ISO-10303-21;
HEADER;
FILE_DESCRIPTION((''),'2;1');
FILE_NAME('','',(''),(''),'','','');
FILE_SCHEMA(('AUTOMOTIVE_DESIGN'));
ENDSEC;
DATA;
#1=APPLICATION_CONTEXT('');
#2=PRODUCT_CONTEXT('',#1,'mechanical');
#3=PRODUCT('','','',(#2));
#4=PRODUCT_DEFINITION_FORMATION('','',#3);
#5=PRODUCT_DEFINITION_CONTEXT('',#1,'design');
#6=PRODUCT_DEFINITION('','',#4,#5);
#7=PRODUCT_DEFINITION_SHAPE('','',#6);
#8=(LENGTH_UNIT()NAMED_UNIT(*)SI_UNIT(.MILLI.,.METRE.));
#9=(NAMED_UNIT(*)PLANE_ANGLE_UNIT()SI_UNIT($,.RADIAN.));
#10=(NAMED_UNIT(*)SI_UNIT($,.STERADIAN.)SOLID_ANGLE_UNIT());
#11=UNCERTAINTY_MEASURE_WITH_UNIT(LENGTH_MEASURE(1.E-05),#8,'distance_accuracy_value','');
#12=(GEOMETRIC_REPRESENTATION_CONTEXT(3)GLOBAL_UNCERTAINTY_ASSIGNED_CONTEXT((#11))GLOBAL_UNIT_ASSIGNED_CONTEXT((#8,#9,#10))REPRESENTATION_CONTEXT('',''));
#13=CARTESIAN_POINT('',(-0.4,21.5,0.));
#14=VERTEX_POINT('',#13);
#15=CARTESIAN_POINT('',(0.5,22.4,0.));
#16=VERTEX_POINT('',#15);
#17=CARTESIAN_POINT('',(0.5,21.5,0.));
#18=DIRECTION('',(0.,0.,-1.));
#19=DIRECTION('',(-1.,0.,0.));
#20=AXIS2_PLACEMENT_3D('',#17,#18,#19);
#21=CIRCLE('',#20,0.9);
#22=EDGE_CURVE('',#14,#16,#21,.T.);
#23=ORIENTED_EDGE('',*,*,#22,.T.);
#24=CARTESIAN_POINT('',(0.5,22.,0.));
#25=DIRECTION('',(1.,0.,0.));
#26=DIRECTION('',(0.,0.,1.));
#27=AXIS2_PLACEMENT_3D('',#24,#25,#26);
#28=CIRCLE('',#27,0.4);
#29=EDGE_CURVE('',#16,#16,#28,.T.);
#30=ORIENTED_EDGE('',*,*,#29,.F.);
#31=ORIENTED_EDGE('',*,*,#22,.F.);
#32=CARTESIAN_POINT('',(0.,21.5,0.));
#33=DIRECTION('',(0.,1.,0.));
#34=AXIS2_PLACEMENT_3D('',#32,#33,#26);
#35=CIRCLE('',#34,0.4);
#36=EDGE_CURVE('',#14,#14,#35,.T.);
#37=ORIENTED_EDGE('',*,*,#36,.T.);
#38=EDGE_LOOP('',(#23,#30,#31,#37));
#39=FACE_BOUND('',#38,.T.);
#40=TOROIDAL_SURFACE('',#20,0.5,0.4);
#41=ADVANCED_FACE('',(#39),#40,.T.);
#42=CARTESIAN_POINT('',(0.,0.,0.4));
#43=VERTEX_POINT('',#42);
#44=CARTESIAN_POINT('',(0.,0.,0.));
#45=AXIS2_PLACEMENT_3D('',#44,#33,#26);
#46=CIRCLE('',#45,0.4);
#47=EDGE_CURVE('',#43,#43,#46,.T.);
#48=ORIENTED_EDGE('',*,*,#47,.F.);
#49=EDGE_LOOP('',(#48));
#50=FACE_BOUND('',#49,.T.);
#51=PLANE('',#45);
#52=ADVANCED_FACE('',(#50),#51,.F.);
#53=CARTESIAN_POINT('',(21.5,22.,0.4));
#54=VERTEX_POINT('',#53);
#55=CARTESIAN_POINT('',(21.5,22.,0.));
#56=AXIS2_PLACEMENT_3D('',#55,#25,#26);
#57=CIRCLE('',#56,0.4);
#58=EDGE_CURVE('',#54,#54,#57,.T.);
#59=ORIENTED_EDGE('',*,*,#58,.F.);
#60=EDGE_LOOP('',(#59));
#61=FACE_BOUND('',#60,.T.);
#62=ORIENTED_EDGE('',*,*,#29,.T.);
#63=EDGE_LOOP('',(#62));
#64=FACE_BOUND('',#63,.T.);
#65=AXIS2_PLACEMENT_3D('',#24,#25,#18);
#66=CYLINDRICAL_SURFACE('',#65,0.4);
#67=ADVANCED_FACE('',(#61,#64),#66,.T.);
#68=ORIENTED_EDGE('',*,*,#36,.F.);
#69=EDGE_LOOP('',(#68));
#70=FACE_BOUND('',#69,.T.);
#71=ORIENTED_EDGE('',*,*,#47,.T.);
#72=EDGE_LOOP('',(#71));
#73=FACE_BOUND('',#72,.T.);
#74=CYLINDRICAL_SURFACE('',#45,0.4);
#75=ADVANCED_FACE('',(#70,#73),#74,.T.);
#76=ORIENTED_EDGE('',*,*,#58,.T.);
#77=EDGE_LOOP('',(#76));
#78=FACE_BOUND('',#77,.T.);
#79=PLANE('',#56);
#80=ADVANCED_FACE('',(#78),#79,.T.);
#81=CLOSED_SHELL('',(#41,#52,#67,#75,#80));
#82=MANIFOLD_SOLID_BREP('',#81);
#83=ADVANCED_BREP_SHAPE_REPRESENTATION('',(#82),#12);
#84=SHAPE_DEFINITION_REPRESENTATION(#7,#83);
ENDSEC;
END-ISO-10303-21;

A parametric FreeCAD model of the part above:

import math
import FreeCAD as App
import Part
import Sketcher
from FreeCAD import Vector
Q = App.Units.Quantity

doc = App.newDocument("Part")
body = doc.addObject("PartDesign::Body", "Body")

# Sketch on XZ plane
sketch1 = body.newObject("Sketcher::SketchObject", "Sketch")
sketch1.AttachmentSupport = (doc.getObject("XZ_Plane"), [""])
sketch1.MapMode = "FlatFace"
sketch1.addGeometry(Part.Circle(Vector(0, 0, 0), Vector(0, 0, 1), 0.4), False)
sketch1.addConstraint(Sketcher.Constraint("Coincident", 0, 3, -1, 1))
sketch1.addConstraint(Sketcher.Constraint("Diameter", 0, Q("0.8 mm")))

# Sketch on XY plane
sketch2 = body.newObject("Sketcher::SketchObject", "Sketch001")
sketch2.AttachmentSupport = (doc.getObject("XY_Plane"), [""])
sketch2.MapMode = "FlatFace"
sketch2.addGeometry(Part.LineSegment(Vector(0, 0, 0), Vector(0, 21.5, 0)), False)
sketch2.addGeometry(Part.ArcOfCircle(Part.Circle(Vector(0.5, 21.5, 0), Vector(0, 0, 1), 0.5), math.radians(90), math.radians(180)), False)
sketch2.addGeometry(Part.LineSegment(Vector(0.5, 22, 0), Vector(21.5, 22, 0)), False)
sketch2.addConstraint(Sketcher.Constraint("Tangent", 0, 2, 1, 2))
sketch2.addConstraint(Sketcher.Constraint("Tangent", 1, 1, 2, 1))
sketch2.addConstraint(Sketcher.Constraint("Vertical", 0))
sketch2.addConstraint(Sketcher.Constraint("Horizontal", 2))
sketch2.addConstraint(Sketcher.Constraint("Coincident", 0, 1, -1, 1))
sketch2.addConstraint(Sketcher.Constraint("Radius", 1, Q("0.5 mm")))
sketch2.addConstraint(Sketcher.Constraint("DistanceX", 2, 1, 2, 2, Q("21 mm")))
sketch2.addConstraint(Sketcher.Constraint("DistanceY", 0, 1, 0, 2, Q("21.5 mm")))
doc.recompute()

additivepipe = body.newObject("PartDesign::AdditivePipe", "AdditivePipe")
additivepipe.Profile = sketch1
additivepipe.Spine = (sketch2, ["Edge1", "Edge2", "Edge3"])

doc.recompute()
